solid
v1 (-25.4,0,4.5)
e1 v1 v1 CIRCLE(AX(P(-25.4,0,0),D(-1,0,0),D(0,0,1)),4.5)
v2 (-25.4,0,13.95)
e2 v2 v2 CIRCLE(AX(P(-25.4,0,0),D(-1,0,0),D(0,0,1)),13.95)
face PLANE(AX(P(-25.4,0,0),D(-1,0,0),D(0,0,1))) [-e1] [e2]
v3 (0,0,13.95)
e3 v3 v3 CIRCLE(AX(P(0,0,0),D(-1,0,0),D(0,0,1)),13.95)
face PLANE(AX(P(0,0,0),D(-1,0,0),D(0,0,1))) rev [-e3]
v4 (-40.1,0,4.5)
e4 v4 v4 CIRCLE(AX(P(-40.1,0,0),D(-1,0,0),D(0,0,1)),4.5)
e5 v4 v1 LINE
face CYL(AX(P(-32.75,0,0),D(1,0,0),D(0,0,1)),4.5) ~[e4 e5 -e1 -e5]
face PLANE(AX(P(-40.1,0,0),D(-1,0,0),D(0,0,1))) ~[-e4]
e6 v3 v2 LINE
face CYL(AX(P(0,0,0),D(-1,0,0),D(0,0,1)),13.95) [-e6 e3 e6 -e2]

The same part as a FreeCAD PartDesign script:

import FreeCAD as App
import Part
import Sketcher

doc = App.newDocument("Part")
body = doc.addObject("PartDesign::Body", "Body")

sketch1 = body.newObject("Sketcher::SketchObject", "Sketch")
sketch1.AttachmentSupport = (doc.getObject("XZ_Plane"), [""])
sketch1.MapMode = "FlatFace"
sketch1.addGeometry([
    Part.LineSegment(App.Vector(0, 13.9, 0), App.Vector(-25.4, 13.9, 0)),
    Part.LineSegment(App.Vector(-25.4, 13.9, 0), App.Vector(-25.4, 4.5, 0)),
    Part.LineSegment(App.Vector(-25.4, 4.5, 0), App.Vector(-40.1, 4.5, 0)),
    Part.LineSegment(App.Vector(-40.1, 4.5, 0), App.Vector(-40.1, 0, 0)),
    Part.LineSegment(App.Vector(-40.1, 0, 0), App.Vector(0, 0, 0)),
    Part.LineSegment(App.Vector(0, 0, 0), App.Vector(0, 13.9, 0)),
], False)
sketch1.addConstraint([
    Sketcher.Constraint("Coincident", 0, 2, 1, 1),
    Sketcher.Constraint("Coincident", 1, 2, 2, 1),
    Sketcher.Constraint("Coincident", 2, 2, 3, 1),
    Sketcher.Constraint("Coincident", 3, 2, 4, 1),
    Sketcher.Constraint("Coincident", 4, 2, 5, 1),
    Sketcher.Constraint("Coincident", 5, 2, 0, 1),
    Sketcher.Constraint("Horizontal", 0),
    Sketcher.Constraint("Vertical", 1),
    Sketcher.Constraint("Horizontal", 2),
    Sketcher.Constraint("Vertical", 3),
    Sketcher.Constraint("Horizontal", 4),
    Sketcher.Constraint("Vertical", 5),
    Sketcher.Constraint("Coincident", 4, 2, -1, 1),
    Sketcher.Constraint("DistanceX", 0, 2, 0, 1, 25.4),
    Sketcher.Constraint("DistanceX", 2, 2, 2, 1, 14.7),
    Sketcher.Constraint("DistanceY", 3, 2, 3, 1, 4.5),
    Sketcher.Constraint("DistanceY", 1, 2, 1, 1, 9.45),
])
revolution = body.newObject("PartDesign::Revolution", "Revolution")
revolution.Profile = sketch1
revolution.ReferenceAxis = (sketch1, ["H_Axis"])
revolution.Angle = 360

doc.recompute()
